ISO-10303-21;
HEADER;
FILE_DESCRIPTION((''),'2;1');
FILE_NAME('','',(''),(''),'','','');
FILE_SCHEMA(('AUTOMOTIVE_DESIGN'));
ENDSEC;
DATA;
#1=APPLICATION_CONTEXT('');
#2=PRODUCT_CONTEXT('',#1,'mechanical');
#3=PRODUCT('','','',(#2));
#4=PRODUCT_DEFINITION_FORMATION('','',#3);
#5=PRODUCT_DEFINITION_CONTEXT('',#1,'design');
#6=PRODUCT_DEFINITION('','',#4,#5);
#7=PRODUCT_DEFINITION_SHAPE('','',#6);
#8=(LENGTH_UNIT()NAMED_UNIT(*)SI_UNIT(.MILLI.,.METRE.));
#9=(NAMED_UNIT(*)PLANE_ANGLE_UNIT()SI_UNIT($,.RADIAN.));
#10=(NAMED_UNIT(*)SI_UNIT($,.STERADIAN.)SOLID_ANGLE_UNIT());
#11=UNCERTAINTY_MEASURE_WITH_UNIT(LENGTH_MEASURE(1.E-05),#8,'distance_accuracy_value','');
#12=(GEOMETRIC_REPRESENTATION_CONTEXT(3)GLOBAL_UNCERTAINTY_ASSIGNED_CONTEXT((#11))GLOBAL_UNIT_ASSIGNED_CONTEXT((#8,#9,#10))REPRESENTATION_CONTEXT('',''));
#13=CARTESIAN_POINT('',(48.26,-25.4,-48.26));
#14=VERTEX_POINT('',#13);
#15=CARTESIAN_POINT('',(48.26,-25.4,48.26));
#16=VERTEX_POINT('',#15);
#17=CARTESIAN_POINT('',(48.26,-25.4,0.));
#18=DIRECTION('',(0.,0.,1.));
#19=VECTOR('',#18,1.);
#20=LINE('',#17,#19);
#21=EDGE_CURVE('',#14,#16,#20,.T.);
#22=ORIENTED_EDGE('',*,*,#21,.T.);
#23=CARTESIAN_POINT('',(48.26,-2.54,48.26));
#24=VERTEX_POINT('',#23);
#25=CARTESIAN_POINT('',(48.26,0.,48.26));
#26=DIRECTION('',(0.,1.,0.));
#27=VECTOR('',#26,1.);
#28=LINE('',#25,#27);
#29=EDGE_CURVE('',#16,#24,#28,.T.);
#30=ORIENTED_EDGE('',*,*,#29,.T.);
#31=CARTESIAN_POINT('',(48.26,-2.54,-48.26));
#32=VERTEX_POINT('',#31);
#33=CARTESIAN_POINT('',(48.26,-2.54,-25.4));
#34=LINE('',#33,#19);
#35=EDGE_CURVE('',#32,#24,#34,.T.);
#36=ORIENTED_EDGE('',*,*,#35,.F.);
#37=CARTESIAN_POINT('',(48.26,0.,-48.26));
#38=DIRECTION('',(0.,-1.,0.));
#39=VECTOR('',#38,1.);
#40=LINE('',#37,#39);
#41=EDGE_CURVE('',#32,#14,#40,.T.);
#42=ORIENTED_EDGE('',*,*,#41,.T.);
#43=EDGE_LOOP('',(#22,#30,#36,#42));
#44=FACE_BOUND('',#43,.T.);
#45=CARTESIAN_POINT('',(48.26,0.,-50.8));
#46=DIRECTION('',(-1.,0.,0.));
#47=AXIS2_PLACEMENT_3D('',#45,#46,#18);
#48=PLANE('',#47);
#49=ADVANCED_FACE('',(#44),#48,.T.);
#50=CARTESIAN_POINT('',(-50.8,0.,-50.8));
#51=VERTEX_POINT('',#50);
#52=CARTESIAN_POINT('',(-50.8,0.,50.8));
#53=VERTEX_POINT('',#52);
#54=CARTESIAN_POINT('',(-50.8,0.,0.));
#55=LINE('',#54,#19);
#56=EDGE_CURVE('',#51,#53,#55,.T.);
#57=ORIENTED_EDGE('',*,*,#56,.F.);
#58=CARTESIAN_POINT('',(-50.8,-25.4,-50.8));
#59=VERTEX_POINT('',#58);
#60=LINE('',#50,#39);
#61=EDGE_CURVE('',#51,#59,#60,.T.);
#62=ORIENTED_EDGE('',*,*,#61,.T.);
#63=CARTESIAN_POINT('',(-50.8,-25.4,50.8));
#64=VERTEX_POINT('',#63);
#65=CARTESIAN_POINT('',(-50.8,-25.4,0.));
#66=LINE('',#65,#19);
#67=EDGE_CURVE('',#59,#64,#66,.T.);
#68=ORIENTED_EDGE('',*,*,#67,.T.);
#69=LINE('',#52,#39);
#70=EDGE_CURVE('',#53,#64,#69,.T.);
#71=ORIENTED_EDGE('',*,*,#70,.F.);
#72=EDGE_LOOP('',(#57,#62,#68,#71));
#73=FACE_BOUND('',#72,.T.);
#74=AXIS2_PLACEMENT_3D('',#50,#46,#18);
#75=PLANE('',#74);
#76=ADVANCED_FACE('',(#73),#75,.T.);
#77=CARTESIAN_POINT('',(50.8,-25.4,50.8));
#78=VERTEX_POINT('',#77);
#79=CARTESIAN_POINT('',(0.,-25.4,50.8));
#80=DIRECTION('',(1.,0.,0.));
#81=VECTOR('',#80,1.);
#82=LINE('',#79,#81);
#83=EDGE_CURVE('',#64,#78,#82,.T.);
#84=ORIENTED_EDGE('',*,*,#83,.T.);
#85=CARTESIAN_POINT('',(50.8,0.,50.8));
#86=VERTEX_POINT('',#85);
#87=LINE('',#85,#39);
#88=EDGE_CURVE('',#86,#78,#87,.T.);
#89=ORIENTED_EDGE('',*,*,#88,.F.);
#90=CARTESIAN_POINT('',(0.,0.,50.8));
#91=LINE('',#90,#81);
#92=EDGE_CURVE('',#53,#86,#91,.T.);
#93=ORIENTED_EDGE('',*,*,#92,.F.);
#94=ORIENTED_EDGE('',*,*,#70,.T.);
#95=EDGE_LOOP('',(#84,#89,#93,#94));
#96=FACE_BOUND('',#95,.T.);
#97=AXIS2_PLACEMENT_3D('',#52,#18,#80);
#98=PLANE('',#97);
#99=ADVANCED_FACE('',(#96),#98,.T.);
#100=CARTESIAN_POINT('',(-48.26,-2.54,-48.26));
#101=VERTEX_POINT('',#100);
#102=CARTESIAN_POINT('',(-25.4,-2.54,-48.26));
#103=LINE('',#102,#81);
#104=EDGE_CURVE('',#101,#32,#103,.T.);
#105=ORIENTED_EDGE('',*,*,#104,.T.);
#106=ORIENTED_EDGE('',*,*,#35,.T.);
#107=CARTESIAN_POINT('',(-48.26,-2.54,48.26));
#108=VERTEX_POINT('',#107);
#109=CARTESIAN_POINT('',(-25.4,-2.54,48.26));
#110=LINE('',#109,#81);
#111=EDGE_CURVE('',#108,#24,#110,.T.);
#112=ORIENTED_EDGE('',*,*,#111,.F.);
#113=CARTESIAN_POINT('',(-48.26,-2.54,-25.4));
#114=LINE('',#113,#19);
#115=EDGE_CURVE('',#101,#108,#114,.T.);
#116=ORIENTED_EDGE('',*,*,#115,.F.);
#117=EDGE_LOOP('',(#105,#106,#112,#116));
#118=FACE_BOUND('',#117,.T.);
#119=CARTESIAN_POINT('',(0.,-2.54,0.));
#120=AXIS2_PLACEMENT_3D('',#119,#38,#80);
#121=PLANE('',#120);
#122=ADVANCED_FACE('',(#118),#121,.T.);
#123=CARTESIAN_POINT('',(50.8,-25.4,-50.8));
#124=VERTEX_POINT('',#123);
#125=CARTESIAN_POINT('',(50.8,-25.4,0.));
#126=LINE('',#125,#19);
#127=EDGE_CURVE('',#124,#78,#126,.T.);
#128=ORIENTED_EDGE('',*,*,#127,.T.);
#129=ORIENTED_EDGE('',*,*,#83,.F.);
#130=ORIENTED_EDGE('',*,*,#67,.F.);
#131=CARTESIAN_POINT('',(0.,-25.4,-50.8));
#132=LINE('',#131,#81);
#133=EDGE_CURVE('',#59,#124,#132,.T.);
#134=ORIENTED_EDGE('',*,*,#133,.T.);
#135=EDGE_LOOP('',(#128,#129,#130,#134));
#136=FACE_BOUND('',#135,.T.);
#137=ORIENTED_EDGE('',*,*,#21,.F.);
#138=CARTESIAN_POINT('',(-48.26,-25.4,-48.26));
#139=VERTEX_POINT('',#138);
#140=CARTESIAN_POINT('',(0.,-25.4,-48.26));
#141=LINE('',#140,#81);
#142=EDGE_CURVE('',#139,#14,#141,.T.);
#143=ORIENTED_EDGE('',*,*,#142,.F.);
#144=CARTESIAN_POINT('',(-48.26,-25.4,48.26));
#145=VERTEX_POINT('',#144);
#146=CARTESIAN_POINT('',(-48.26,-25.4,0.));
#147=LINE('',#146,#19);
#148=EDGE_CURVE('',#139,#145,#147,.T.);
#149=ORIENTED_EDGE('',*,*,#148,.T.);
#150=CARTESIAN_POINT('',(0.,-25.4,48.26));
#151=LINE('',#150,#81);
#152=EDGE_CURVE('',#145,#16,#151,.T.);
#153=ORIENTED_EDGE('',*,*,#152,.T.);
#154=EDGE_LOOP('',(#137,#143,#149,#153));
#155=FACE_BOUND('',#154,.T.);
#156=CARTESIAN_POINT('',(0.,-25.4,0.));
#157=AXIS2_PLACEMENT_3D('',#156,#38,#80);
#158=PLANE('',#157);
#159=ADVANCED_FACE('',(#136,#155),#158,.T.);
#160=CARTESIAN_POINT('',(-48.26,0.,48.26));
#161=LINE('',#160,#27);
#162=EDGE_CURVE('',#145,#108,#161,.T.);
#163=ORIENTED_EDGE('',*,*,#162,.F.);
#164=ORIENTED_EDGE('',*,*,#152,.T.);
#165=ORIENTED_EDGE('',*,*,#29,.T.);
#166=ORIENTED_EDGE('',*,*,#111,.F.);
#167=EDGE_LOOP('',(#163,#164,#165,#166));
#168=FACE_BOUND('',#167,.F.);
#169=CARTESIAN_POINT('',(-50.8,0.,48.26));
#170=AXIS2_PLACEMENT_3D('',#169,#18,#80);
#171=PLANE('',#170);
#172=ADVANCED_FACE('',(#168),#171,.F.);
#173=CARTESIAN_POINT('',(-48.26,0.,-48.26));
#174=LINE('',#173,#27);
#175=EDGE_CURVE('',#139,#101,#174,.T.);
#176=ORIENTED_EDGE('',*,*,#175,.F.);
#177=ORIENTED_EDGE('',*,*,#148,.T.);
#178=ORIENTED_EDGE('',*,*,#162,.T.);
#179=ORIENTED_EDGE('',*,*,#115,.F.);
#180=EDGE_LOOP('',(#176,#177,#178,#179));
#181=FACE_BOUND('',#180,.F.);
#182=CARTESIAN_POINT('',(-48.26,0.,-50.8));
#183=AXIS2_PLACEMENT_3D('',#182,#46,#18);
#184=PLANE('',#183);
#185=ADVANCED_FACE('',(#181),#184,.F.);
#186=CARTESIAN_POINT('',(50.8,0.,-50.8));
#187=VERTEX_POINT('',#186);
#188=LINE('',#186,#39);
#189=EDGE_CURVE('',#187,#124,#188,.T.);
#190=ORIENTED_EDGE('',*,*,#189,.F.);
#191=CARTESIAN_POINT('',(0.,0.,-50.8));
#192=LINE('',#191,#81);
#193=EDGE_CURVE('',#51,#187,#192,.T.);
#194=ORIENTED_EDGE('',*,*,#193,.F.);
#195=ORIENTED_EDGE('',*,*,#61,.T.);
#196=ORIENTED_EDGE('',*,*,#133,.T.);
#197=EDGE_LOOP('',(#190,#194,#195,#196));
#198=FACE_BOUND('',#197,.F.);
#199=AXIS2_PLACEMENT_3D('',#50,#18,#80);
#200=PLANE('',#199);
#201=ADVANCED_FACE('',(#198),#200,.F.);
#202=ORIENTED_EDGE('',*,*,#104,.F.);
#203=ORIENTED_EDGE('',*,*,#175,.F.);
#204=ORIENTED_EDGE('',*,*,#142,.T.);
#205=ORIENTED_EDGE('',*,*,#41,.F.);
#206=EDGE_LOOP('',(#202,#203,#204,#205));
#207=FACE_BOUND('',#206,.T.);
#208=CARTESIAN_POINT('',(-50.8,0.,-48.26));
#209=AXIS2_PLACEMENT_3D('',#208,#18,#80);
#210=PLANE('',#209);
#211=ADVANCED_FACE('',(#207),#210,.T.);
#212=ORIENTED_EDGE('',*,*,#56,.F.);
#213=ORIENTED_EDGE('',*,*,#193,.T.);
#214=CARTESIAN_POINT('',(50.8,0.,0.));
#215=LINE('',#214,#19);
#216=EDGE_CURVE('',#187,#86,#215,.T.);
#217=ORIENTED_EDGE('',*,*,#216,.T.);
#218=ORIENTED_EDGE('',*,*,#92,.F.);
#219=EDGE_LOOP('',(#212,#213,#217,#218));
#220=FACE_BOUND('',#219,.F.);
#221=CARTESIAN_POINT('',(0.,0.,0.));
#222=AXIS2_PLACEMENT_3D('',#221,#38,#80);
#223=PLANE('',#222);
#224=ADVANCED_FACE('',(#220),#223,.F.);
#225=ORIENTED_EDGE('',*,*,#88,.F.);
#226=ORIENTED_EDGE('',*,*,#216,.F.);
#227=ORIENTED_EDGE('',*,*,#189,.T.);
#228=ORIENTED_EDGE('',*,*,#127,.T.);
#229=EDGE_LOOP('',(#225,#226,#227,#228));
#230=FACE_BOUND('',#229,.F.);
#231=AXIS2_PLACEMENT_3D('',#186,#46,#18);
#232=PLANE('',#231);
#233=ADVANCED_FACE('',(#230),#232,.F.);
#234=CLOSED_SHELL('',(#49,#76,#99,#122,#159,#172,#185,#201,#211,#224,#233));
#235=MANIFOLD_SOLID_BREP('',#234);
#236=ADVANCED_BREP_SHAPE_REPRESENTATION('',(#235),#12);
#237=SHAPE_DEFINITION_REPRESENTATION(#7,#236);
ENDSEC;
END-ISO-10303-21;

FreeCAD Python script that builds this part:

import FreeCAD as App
import Part
import Sketcher
Q = App.Units.Quantity


def faces_at(feature, points):
    """Names of the faces that lie closest to the given points."""
    faces = feature.Shape.Faces
    near = lambda p: min(range(len(faces)), key=lambda i: faces[i].distToShape(Part.Vertex(*p))[0])
    return sorted({f"Face{near(p) + 1}" for p in points})


def add_polygon(sketch, points):
    """Adds a closed chain of lines whose ends are joined by coincident constraints."""
    first, n = sketch.GeometryCount, len(points)
    for a, b in zip(points, points[1:] + points[:1]):
        sketch.addGeometry(Part.LineSegment(App.Vector(*a, 0), App.Vector(*b, 0)), False)
    for i in range(n):
        sketch.addConstraint(Sketcher.Constraint("Coincident", first + i, 2, first + (i + 1) % n, 1))

doc = App.newDocument("Part")
body = doc.addObject("PartDesign::Body", "Body")

sketch1 = body.newObject("Sketcher::SketchObject", "Sketch")
sketch1.AttachmentSupport = (doc.getObject("XZ_Plane"), [""])
sketch1.MapMode = "FlatFace"
add_polygon(sketch1, [(-51, 51), (-51, -51), (51, -51), (51, 51)])
sketch1.addConstraint([
    Sketcher.Constraint("Vertical", 0),
    Sketcher.Constraint("Horizontal", 1),
    Sketcher.Constraint("Vertical", 2),
    Sketcher.Constraint("Horizontal", 3),
    Sketcher.Constraint("Symmetric", 0, 2, 2, 2, -1, 1),
    Sketcher.Constraint("Equal", 3, 0),
    Sketcher.Constraint("DistanceX", 1, 1, 1, 2, Q("4 in")),
])
pad1 = body.newObject("PartDesign::Pad", "Pad")
pad1.Profile = sketch1
pad1.Length = Q("1 in")
doc.recompute()

thickness = body.newObject("PartDesign::Thickness", "Thickness")
thickness.Base = (pad1, faces_at(pad1, [(0, -25.4, 0)]))
thickness.Value = Q("0.1 in")
thickness.Reversed = True
thickness.Join = "Arc"

doc.recompute()
